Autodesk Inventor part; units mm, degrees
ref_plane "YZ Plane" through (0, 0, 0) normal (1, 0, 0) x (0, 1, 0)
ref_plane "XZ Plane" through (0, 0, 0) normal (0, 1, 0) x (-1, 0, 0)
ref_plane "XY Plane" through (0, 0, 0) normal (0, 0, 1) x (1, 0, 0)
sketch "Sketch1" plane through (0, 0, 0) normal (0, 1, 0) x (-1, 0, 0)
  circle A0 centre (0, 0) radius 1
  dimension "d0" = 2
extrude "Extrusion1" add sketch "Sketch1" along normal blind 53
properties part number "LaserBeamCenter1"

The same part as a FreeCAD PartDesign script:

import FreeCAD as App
import Part
import Sketcher

V = App.Vector
Q = App.Units.Quantity

doc = App.newDocument("Part")
body = doc.addObject("PartDesign::Body", "Body")

# Sketch on XZ plane
sketch1 = doc.addObject("Sketcher::SketchObject", "Sketch")
body.addObject(sketch1)
sketch1.AttachmentSupport = (doc.XZ_Plane, [""])
sketch1.MapMode = "FlatFace"
sketch1.addGeometry(Part.Circle(V(0, 0, 0), V(0, 0, 1), 1), False)
sketch1.addConstraint(Sketcher.Constraint("Coincident", 0, 3, -1, 1))
sketch1.addConstraint(Sketcher.Constraint("Diameter", 0, Q("2 mm")))
pad1 = doc.addObject("PartDesign::Pad", "Pad")
body.addObject(pad1)
pad1.Profile = sketch1
pad1.Length = 53
pad1.Reversed = True

doc.recompute()
